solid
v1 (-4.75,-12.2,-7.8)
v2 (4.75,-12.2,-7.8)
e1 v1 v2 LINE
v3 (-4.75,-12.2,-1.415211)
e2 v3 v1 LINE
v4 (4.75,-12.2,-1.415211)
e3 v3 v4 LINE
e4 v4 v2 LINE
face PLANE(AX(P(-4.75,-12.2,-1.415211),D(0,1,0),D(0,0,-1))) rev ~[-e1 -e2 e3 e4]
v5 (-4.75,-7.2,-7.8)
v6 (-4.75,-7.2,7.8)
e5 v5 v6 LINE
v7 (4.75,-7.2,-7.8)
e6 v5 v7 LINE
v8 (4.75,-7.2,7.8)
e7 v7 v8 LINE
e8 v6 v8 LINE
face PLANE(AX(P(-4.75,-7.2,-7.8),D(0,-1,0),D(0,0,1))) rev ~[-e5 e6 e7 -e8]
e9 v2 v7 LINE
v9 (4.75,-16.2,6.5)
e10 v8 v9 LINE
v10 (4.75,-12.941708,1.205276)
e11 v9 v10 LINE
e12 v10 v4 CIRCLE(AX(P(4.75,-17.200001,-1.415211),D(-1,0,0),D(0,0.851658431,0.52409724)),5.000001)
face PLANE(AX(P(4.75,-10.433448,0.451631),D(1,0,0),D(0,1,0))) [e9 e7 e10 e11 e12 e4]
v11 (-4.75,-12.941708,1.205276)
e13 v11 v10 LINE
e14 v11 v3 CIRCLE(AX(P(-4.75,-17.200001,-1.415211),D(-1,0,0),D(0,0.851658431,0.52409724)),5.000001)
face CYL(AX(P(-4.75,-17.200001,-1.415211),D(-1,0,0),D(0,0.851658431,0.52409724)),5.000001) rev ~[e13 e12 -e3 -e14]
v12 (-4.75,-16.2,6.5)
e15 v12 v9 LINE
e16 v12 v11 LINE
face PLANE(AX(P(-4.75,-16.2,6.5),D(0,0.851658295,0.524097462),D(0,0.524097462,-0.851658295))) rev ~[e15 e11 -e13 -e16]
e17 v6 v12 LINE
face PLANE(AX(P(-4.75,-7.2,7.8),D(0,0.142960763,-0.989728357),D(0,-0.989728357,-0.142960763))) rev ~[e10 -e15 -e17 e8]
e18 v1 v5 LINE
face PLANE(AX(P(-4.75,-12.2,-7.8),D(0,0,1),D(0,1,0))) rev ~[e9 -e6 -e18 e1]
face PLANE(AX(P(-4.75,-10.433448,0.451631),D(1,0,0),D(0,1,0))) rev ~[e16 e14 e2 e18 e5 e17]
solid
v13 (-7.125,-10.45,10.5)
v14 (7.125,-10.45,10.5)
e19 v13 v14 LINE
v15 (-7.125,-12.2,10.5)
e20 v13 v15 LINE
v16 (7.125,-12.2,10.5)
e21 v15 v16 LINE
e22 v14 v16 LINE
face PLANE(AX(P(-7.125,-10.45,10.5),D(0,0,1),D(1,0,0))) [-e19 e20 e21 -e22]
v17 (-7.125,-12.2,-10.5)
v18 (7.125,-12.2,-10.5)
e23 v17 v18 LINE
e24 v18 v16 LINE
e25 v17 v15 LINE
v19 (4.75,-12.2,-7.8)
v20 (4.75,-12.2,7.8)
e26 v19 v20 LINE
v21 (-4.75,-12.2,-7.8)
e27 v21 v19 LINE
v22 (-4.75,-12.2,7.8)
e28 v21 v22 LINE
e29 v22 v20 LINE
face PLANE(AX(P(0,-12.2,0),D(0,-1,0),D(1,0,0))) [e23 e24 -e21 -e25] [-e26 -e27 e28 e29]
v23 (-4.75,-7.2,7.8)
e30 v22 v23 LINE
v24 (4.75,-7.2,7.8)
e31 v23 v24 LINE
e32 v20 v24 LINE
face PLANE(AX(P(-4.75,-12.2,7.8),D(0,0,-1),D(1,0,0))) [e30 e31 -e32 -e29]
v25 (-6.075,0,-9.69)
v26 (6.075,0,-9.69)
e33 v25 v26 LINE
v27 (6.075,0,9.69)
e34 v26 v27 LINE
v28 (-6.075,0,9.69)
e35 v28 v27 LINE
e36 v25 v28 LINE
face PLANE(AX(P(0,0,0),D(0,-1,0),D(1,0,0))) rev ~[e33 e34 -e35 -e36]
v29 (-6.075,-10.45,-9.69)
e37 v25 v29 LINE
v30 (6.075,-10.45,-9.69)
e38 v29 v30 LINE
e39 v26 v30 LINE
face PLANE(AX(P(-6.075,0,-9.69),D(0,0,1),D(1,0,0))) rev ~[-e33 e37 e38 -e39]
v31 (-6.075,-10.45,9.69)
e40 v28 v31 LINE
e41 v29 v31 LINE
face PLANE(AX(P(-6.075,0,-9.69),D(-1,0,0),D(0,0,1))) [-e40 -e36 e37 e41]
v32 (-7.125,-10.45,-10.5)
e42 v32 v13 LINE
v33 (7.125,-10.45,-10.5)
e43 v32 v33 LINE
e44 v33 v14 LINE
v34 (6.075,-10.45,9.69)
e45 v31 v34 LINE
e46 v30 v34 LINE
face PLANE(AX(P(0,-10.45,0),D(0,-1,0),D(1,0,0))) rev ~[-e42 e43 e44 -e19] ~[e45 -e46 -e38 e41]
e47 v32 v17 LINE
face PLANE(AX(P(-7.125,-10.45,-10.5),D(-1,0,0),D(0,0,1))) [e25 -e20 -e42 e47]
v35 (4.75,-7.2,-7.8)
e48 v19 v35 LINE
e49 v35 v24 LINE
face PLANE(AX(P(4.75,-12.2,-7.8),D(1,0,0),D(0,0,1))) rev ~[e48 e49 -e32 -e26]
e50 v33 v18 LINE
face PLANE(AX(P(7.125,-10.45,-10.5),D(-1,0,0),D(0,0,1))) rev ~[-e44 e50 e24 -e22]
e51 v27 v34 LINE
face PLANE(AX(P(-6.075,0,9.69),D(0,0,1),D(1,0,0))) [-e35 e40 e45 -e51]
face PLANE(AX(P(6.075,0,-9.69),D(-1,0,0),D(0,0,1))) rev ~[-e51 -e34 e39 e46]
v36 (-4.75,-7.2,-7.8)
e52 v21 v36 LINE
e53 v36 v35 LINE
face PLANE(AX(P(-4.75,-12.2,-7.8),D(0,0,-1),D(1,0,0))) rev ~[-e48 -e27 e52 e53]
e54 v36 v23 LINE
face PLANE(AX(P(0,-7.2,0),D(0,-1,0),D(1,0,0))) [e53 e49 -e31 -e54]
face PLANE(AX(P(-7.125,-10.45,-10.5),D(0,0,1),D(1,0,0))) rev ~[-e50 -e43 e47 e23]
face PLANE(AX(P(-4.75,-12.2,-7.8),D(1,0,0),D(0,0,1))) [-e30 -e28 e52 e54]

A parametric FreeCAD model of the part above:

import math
import FreeCAD as App
import Part
import Sketcher

V = App.Vector
Q = App.Units.Quantity


def add_polygon(sketch, points):
    """Adds a closed chain of lines whose ends are joined by coincident constraints."""
    first, n = sketch.GeometryCount, len(points)
    for a, b in zip(points, points[1:] + points[:1]):
        sketch.addGeometry(Part.LineSegment(App.Vector(*a, 0), App.Vector(*b, 0)), False)
    for i in range(n):
        sketch.addConstraint(Sketcher.Constraint("Coincident", first + i, 2, first + (i + 1) % n, 1))

doc = App.newDocument("Part")
body = doc.addObject("PartDesign::Body", "Body")

# Sketch on XZ plane
sketch1 = body.newObject("Sketcher::SketchObject", "Sketch")
sketch1.AttachmentSupport = (doc.getObject("XZ_Plane"), [""])
sketch1.MapMode = "FlatFace"
add_polygon(sketch1, [(-6.075, 9.69), (-6.075, -9.69), (6.075, -9.69), (6.075, 9.69)])  # lines 0-3
sketch1.addConstraint(Sketcher.Constraint("Vertical", 0))
sketch1.addConstraint(Sketcher.Constraint("Horizontal", 1))
sketch1.addConstraint(Sketcher.Constraint("Vertical", 2))
sketch1.addConstraint(Sketcher.Constraint("Horizontal", 3))
sketch1.addConstraint(Sketcher.Constraint("Symmetric", 0, 2, 2, 2, -1, 1))
sketch1.addConstraint(Sketcher.Constraint("DistanceX", 1, 1, 1, 2, Q("12.15 mm")))
sketch1.addConstraint(Sketcher.Constraint("DistanceY", 0, 2, 0, 1, Q("19.38 mm")))
pad1 = body.newObject("PartDesign::Pad", "Pad")
pad1.Profile = sketch1
pad1.Length = 10.45

# Sketch on XZ plane
sketch2 = body.newObject("Sketcher::SketchObject", "Sketch001")
sketch2.AttachmentSupport = (doc.getObject("XZ_Plane"), [""])
sketch2.MapMode = "FlatFace"
sketch2.AttachmentOffset = App.Placement(V(0, 0, 10.45), App.Rotation())
add_polygon(sketch2, [(-7.125, 10.5), (-7.125, -10.5), (7.125, -10.5), (7.125, 10.5)])  # lines 0-3
sketch2.addConstraint(Sketcher.Constraint("Vertical", 0))
sketch2.addConstraint(Sketcher.Constraint("Horizontal", 1))
sketch2.addConstraint(Sketcher.Constraint("Vertical", 2))
sketch2.addConstraint(Sketcher.Constraint("Horizontal", 3))
sketch2.addConstraint(Sketcher.Constraint("Symmetric", 0, 2, 2, 2, -1, 1))
sketch2.addConstraint(Sketcher.Constraint("DistanceY", 0, 2, 0, 1, Q("21 mm")))
sketch2.addConstraint(Sketcher.Constraint("DistanceX", 1, 1, 1, 2, Q("14.25 mm")))
pad2 = body.newObject("PartDesign::Pad", "Pad001")
pad2.Profile = sketch2
pad2.Length = 1.75

# Sketch on XZ plane
sketch3 = body.newObject("Sketcher::SketchObject", "Sketch002")
sketch3.AttachmentSupport = (doc.getObject("XZ_Plane"), [""])
sketch3.MapMode = "FlatFace"
sketch3.AttachmentOffset = App.Placement(V(0, 0, 12.2), App.Rotation())
add_polygon(sketch3, [(-4.75, 7.8), (-4.75, -7.8), (4.75, -7.8), (4.75, 7.8)])  # lines 0-3
sketch3.addConstraint(Sketcher.Constraint("Vertical", 0))
sketch3.addConstraint(Sketcher.Constraint("Horizontal", 1))
sketch3.addConstraint(Sketcher.Constraint("Vertical", 2))
sketch3.addConstraint(Sketcher.Constraint("Horizontal", 3))
sketch3.addConstraint(Sketcher.Constraint("Symmetric", 0, 2, 2, 2, -1, 1))
sketch3.addConstraint(Sketcher.Constraint("DistanceX", 1, 1, 1, 2, Q("9.5 mm")))
sketch3.addConstraint(Sketcher.Constraint("DistanceY", 0, 2, 0, 1, Q("15.6 mm")))
pocket1 = body.newObject("PartDesign::Pocket", "Pocket")
pocket1.Profile = sketch3
pocket1.Length = 5
body2 = doc.addObject("PartDesign::Body", "Body001")

# Sketch on YZ plane
sketch4 = body2.newObject("Sketcher::SketchObject", "Sketch003")
sketch4.AttachmentSupport = (doc.getObject("YZ_Plane001"), [""])
sketch4.MapMode = "FlatFace"
sketch4.AttachmentOffset = App.Placement(V(0, 0, -4.75), App.Rotation())
sketch4.addGeometry(Part.LineSegment(V(-12.2, -1.415211, 0), V(-12.2, -7.8, 0)), False)
sketch4.addGeometry(Part.LineSegment(V(-12.2, -7.8, 0), V(-7.2, -7.8, 0)), False)
sketch4.addGeometry(Part.LineSegment(V(-7.2, -7.8, 0), V(-7.2, 7.8, 0)), False)
sketch4.addGeometry(Part.LineSegment(V(-7.2, 7.8, 0), V(-16.2, 6.5, 0)), False)
sketch4.addGeometry(Part.LineSegment(V(-16.2, 6.5, 0), V(-12.941708, 1.205276, 0)), False)
sketch4.addGeometry(Part.ArcOfCircle(Part.Circle(V(-17.200001, -1.415211, 0), V(0, 0, 1), 5.000001), math.radians(-0.000003), math.radians(31.60749)), False)
sketch4.addConstraint(Sketcher.Constraint("Coincident", 0, 2, 1, 1))
sketch4.addConstraint(Sketcher.Constraint("Coincident", 1, 2, 2, 1))
sketch4.addConstraint(Sketcher.Constraint("Coincident", 2, 2, 3, 1))
sketch4.addConstraint(Sketcher.Constraint("Coincident", 3, 2, 4, 1))
sketch4.addConstraint(Sketcher.Constraint("Tangent", 4, 2, 5, 2))
sketch4.addConstraint(Sketcher.Constraint("Tangent", 5, 1, 0, 1))
sketch4.addConstraint(Sketcher.Constraint("Vertical", 0))
sketch4.addConstraint(Sketcher.Constraint("Horizontal", 1))
sketch4.addConstraint(Sketcher.Constraint("Vertical", 2))
sketch4.addConstraint(Sketcher.Constraint("Radius", 5, Q("5.000001 mm")))
sketch4.addConstraint(Sketcher.Constraint("DistanceX", 1, 1, 1, 2, Q("5 mm")))
sketch4.addConstraint(Sketcher.Constraint("DistanceY", 2, 1, 2, 2, Q("15.6 mm")))
sketch4.addConstraint(Sketcher.Constraint("DistanceX", 5, 3, 3, 2, Q("1.000001 mm")))
sketch4.addConstraint(Sketcher.Constraint("DistanceX", 5, 3, -1, 1, Q("17.200001 mm")))
sketch4.addConstraint(Sketcher.Constraint("DistanceY", 0, 2, -1, 1, Q("7.8 mm")))
sketch4.addConstraint(Sketcher.Constraint("DistanceY", -1, 1, 3, 2, Q("6.5 mm")))
sketch4.addConstraint(Sketcher.Constraint("DistanceY", 0, 2, 0, 1, Q("6.384789 mm")))
pad3 = body2.newObject("PartDesign::Pad", "Pad002")
pad3.Profile = sketch4
pad3.Length = 9.5

doc.recompute()
